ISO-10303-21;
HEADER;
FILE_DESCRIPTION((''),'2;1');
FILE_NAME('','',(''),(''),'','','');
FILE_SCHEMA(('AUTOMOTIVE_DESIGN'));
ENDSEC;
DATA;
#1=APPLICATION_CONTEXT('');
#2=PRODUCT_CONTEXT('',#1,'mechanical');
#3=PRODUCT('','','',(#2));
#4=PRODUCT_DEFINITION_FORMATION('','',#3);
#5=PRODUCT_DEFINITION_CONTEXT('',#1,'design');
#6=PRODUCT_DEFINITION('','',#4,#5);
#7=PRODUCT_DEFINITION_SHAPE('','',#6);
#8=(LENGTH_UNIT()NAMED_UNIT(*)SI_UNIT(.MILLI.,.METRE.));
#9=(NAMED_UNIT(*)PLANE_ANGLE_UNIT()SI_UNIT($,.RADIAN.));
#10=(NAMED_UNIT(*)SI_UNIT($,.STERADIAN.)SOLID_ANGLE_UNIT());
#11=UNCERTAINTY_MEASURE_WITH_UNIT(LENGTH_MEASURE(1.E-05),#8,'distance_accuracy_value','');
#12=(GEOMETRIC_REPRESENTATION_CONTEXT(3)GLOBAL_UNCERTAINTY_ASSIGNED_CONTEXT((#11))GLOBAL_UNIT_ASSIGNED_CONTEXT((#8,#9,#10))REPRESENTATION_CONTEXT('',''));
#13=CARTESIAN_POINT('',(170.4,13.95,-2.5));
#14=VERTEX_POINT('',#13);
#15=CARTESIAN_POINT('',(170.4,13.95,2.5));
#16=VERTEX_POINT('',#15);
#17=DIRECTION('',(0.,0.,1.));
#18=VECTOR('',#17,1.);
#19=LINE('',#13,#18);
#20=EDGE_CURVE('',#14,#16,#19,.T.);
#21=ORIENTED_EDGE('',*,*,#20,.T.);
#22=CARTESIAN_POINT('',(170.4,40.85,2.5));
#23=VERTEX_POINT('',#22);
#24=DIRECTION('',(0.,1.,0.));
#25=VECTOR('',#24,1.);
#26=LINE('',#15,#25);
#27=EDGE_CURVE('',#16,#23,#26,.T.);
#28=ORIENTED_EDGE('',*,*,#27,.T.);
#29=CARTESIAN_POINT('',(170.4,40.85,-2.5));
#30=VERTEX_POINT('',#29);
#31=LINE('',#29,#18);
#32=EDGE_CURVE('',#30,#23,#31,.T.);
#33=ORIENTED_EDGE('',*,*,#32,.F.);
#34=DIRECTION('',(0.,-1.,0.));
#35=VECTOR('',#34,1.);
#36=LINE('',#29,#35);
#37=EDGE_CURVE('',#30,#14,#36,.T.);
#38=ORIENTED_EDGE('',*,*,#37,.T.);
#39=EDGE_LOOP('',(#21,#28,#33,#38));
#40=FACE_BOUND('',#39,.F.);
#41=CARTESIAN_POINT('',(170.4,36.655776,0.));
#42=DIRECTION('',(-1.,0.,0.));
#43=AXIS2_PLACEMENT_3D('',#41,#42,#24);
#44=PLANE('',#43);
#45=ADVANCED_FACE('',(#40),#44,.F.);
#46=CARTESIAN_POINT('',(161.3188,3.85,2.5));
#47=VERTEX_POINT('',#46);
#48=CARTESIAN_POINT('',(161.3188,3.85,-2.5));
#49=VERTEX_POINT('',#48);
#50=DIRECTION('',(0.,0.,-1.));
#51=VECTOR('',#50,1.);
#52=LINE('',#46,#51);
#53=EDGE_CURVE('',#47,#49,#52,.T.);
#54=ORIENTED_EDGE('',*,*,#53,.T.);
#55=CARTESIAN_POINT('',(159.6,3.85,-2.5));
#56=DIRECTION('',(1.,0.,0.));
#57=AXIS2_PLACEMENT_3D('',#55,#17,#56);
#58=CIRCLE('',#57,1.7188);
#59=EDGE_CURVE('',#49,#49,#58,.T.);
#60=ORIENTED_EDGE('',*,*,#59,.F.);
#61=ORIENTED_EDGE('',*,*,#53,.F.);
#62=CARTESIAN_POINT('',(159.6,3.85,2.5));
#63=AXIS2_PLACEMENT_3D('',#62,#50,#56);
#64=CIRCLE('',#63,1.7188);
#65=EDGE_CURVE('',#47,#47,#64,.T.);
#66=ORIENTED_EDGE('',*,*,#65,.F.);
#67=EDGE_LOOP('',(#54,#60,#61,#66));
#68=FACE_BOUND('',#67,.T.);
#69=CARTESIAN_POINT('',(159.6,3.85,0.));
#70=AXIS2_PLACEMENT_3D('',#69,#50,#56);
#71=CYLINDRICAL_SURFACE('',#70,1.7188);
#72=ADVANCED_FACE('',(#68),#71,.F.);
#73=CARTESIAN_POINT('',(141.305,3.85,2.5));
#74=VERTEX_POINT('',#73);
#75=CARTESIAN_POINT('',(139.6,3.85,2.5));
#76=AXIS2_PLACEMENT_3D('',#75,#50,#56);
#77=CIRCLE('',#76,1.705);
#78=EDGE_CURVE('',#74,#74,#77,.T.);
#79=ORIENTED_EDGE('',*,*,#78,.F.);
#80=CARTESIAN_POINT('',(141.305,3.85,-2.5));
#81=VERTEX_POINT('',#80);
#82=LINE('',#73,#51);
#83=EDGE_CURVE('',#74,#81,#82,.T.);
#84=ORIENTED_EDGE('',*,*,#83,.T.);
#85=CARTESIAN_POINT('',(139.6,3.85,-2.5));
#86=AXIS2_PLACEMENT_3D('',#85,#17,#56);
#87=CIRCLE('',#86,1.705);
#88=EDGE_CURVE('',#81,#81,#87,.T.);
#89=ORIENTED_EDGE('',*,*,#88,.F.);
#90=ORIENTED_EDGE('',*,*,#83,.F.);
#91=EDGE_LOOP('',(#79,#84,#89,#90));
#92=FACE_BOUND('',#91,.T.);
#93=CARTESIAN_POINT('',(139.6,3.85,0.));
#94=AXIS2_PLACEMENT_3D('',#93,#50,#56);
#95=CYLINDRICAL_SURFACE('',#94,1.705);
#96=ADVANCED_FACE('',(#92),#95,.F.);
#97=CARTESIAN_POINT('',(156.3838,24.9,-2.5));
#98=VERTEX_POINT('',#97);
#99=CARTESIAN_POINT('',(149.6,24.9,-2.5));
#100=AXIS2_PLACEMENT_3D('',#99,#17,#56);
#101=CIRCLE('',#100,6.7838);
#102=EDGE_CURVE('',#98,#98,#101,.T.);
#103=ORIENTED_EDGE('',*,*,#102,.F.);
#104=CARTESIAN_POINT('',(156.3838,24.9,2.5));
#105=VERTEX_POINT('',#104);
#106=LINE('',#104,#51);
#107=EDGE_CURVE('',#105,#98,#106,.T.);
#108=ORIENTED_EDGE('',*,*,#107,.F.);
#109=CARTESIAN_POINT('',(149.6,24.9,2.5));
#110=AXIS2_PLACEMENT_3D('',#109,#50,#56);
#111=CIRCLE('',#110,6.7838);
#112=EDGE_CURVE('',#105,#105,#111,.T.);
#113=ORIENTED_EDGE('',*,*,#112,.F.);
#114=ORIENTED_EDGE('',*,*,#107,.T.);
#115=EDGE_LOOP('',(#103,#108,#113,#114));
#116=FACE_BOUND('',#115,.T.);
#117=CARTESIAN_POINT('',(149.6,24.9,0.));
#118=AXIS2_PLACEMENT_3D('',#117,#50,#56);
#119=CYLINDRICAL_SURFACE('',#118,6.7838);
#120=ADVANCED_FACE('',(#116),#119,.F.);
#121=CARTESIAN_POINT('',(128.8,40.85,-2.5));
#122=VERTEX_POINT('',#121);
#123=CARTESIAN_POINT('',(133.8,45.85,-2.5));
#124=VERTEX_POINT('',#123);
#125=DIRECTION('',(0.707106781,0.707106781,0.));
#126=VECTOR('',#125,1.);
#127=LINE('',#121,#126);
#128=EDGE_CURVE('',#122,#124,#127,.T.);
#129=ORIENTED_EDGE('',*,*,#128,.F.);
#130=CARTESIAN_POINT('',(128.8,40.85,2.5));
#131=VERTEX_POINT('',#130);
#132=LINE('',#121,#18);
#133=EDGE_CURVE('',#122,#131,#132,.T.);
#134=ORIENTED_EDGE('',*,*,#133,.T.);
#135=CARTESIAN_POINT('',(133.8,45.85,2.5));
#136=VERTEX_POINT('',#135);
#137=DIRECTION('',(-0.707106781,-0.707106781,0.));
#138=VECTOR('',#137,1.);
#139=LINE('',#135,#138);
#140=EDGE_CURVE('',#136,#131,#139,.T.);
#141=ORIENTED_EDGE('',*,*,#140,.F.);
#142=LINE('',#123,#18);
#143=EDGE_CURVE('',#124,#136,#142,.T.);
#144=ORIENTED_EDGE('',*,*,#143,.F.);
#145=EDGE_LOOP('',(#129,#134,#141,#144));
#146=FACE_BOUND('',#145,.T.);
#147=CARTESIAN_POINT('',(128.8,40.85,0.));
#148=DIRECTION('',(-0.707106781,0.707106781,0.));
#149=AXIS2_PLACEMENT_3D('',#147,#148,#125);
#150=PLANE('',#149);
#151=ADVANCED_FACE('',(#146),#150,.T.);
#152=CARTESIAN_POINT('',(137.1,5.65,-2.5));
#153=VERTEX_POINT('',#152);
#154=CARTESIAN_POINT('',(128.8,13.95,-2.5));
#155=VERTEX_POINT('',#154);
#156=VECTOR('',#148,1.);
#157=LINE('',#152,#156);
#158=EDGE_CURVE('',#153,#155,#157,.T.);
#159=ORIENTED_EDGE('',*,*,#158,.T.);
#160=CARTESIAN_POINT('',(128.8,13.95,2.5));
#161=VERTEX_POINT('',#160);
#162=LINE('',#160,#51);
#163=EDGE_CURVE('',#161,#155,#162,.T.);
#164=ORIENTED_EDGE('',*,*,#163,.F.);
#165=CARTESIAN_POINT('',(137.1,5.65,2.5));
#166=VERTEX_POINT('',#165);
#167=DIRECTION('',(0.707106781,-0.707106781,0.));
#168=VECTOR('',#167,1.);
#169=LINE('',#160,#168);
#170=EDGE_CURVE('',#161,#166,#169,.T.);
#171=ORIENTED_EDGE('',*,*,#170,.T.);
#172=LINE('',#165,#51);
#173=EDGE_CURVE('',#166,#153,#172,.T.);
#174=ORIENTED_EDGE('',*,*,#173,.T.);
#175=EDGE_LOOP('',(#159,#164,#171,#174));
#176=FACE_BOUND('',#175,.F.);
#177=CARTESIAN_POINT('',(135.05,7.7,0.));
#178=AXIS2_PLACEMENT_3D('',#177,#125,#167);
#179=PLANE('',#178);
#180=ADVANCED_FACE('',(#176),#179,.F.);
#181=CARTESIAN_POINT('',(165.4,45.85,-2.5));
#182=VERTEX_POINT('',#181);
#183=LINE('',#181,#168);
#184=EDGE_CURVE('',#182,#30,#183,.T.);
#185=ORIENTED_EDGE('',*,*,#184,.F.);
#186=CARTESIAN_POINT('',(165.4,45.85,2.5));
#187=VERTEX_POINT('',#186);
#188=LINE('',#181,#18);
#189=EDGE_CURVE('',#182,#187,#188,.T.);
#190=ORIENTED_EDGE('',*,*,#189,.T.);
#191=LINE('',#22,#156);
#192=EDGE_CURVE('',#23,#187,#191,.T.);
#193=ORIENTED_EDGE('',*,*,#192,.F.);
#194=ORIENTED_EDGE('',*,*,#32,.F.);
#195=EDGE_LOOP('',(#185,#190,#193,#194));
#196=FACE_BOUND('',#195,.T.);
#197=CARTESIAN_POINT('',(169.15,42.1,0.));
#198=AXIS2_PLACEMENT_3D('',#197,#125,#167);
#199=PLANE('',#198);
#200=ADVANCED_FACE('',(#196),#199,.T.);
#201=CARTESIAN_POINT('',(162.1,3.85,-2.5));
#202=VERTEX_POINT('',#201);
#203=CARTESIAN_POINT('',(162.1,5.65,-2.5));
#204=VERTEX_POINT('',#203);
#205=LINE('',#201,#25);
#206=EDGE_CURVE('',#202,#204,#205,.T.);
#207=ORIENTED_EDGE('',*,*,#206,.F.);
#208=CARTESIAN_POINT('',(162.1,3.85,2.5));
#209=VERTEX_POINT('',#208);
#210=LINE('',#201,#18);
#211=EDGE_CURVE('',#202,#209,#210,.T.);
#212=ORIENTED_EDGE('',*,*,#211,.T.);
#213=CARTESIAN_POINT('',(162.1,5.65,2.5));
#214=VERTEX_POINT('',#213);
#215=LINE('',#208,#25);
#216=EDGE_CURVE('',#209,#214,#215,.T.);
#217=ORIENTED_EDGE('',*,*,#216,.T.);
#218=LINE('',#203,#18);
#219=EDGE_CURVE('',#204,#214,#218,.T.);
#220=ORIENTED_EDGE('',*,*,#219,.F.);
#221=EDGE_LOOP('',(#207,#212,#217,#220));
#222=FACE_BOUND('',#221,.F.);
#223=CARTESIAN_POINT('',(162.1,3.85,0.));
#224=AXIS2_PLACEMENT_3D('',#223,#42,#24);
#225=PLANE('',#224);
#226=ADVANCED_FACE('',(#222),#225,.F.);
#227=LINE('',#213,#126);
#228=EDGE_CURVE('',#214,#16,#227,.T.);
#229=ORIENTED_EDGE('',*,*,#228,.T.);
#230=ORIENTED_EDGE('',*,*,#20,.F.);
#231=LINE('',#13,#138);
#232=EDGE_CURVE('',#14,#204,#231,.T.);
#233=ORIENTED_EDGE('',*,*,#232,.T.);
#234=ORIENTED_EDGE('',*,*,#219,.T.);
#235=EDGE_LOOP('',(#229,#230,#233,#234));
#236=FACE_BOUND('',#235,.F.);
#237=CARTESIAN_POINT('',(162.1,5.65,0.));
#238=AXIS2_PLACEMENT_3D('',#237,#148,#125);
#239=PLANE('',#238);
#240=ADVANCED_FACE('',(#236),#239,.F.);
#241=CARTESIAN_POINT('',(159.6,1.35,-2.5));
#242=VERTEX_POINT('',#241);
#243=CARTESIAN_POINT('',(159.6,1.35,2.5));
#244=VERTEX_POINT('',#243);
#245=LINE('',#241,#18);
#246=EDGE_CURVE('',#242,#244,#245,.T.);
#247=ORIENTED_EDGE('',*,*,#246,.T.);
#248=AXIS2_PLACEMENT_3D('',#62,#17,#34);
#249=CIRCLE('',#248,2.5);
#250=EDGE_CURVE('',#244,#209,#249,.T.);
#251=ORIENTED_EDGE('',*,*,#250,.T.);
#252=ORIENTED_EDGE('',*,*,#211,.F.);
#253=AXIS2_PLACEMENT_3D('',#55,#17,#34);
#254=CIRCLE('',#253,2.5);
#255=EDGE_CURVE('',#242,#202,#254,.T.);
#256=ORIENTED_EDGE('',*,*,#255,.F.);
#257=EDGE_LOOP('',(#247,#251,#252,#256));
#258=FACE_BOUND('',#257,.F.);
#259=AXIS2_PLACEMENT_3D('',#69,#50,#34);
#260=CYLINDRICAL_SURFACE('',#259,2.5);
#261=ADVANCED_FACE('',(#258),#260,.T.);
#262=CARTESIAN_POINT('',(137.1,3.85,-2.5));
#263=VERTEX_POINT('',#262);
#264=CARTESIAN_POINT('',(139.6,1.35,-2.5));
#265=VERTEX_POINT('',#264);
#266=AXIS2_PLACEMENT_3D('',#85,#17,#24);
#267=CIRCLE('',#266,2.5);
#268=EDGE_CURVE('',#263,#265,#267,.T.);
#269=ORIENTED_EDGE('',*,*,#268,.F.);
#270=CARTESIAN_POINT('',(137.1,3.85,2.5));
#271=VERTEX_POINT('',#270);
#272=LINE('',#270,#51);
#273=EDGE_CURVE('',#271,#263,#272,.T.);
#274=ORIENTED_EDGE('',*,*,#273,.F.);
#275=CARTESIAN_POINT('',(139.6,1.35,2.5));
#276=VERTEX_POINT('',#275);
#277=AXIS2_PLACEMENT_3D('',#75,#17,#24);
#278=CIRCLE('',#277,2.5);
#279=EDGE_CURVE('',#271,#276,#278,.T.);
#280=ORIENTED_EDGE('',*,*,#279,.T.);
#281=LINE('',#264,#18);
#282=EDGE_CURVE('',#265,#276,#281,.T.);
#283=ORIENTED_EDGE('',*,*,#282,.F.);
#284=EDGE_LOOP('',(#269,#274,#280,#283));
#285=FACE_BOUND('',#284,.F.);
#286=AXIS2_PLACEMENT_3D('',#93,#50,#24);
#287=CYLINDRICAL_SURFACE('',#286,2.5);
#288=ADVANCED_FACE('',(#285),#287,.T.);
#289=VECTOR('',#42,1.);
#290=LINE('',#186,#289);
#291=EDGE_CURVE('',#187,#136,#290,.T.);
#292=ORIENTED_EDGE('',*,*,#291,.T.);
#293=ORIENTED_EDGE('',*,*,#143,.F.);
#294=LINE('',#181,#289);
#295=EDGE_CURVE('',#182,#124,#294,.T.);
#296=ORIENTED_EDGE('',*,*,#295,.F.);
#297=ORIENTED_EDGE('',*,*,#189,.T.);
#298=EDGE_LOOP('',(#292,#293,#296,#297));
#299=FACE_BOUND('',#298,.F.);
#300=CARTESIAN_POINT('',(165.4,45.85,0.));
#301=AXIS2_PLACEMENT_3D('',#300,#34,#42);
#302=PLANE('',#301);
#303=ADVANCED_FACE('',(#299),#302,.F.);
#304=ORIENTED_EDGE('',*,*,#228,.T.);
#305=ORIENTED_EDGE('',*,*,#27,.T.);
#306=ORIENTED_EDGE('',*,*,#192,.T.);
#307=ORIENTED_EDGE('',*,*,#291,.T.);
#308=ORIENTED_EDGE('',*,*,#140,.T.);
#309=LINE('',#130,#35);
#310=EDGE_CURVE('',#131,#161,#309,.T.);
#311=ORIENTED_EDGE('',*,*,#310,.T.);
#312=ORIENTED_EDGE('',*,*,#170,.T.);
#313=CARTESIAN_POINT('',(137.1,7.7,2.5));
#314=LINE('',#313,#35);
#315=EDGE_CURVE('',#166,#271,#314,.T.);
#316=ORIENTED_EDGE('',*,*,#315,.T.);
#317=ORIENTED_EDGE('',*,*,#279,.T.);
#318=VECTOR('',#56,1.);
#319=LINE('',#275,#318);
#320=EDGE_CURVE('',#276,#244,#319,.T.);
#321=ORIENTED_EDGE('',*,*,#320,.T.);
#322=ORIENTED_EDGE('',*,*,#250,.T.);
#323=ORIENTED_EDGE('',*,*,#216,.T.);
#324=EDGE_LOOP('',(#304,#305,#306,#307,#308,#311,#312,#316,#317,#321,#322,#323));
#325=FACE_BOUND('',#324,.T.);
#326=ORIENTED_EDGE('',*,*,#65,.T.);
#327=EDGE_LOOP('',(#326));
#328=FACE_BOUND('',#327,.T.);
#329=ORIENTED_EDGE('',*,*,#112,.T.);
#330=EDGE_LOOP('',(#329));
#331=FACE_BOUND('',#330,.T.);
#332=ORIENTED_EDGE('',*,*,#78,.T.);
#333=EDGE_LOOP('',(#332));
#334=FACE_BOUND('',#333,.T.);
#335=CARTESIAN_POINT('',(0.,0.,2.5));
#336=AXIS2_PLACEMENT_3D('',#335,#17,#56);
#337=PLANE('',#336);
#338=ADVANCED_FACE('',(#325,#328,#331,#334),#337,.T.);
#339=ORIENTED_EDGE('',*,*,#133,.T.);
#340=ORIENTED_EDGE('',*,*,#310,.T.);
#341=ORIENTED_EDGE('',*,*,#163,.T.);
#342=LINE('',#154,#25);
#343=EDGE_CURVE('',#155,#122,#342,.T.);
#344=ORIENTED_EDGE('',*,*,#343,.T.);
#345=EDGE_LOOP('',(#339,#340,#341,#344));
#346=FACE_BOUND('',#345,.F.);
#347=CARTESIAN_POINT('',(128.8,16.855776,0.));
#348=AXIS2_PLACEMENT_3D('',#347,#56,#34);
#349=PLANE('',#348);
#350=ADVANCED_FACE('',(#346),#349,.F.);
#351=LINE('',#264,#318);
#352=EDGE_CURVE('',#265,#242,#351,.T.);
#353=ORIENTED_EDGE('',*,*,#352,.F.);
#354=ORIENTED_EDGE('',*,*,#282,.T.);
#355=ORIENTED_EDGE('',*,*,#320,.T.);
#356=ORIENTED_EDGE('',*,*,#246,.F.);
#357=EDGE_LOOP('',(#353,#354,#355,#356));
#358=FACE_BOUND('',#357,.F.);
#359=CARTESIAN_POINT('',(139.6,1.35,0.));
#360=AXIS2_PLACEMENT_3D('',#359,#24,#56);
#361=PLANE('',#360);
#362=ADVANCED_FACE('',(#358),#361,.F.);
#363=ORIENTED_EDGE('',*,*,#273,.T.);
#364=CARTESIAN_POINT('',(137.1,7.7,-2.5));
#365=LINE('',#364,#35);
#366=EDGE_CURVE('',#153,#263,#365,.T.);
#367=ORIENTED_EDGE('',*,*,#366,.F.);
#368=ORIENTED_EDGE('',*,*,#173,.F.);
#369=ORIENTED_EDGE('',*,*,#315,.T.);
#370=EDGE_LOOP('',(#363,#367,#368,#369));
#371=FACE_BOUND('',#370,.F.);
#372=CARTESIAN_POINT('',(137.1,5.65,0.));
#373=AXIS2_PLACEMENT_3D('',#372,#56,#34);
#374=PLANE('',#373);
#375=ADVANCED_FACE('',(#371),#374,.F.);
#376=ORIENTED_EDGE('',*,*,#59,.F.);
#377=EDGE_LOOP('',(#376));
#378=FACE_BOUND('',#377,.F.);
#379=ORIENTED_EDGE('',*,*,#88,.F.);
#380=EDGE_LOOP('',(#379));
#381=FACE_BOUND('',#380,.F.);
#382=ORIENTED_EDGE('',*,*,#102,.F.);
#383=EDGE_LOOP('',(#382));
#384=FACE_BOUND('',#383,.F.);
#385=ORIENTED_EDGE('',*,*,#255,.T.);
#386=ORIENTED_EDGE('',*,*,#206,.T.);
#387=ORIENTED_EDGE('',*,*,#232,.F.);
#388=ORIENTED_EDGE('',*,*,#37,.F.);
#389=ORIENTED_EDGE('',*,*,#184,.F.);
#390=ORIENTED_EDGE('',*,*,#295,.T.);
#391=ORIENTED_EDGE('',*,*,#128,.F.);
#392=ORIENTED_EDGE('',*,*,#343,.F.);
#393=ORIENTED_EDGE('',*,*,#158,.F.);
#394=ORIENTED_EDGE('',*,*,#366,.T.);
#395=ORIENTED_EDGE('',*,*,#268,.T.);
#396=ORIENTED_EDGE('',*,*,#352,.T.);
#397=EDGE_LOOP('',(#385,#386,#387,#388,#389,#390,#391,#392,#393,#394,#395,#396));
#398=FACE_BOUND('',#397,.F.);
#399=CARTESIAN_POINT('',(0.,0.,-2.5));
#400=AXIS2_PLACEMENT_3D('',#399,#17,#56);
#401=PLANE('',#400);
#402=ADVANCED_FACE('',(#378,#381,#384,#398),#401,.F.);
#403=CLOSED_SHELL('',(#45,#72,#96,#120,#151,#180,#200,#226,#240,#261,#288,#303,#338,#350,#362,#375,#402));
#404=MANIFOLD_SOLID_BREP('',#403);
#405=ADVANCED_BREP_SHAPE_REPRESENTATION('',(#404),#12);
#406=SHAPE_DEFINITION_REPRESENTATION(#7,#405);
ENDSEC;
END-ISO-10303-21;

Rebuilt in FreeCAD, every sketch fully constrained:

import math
import FreeCAD as App
import Part
import Sketcher

V = App.Vector
Q = App.Units.Quantity

doc = App.newDocument("Part")
body = doc.addObject("PartDesign::Body", "Body")

sketch1 = body.newObject("Sketcher::SketchObject", "Sketch")
sketch1.AttachmentSupport = (doc.getObject("XY_Plane"), [""])
sketch1.MapMode = "FlatFace"
sketch1.addGeometry([
    Part.ArcOfCircle(Part.Circle(V(139.6, 3.85, 0), V(0, 0, 1), 2.5), math.radians(180), math.radians(270)),
    Part.LineSegment(V(139.6, 1.35, 0), V(159.6, 1.35, 0)),
    Part.ArcOfCircle(Part.Circle(V(159.6, 3.85, 0), V(0, 0, 1), 2.5), math.radians(-90), math.radians(0)),
    Part.LineSegment(V(162.1, 3.85, 0), V(162.1, 5.65, 0)),
    Part.LineSegment(V(162.1, 5.65, 0), V(170.4, 13.95, 0)),
    Part.LineSegment(V(170.4, 13.95, 0), V(170.4, 40.85, 0)),
    Part.LineSegment(V(170.4, 40.85, 0), V(165.4, 45.85, 0)),
    Part.LineSegment(V(165.4, 45.85, 0), V(133.8, 45.85, 0)),
    Part.LineSegment(V(133.8, 45.85, 0), V(128.8, 40.85, 0)),
    Part.LineSegment(V(128.8, 40.85, 0), V(128.8, 13.95, 0)),
    Part.LineSegment(V(128.8, 13.95, 0), V(137.1, 5.65, 0)),
    Part.LineSegment(V(137.1, 5.65, 0), V(137.1, 3.85, 0)),
    Part.Circle(V(139.6, 3.85, 0), V(0, 0, 1), 1.705),
    Part.Circle(V(159.6, 3.85, 0), V(0, 0, 1), 1.7188),
    Part.Circle(V(149.6, 24.9, 0), V(0, 0, 1), 6.7838),
], False)
sketch1.addConstraint([
    Sketcher.Constraint("Tangent", 0, 2, 1, 1),
    Sketcher.Constraint("Tangent", 1, 2, 2, 1),
    Sketcher.Constraint("Tangent", 2, 2, 3, 1),
    Sketcher.Constraint("Coincident", 3, 2, 4, 1),
    Sketcher.Constraint("Coincident", 4, 2, 5, 1),
    Sketcher.Constraint("Coincident", 5, 2, 6, 1),
    Sketcher.Constraint("Coincident", 6, 2, 7, 1),
    Sketcher.Constraint("Coincident", 7, 2, 8, 1),
    Sketcher.Constraint("Coincident", 8, 2, 9, 1),
    Sketcher.Constraint("Coincident", 9, 2, 10, 1),
    Sketcher.Constraint("Coincident", 10, 2, 11, 1),
    Sketcher.Constraint("Tangent", 11, 2, 0, 1),
    Sketcher.Constraint("Horizontal", 1),
    Sketcher.Constraint("Vertical", 3),
    Sketcher.Constraint("Vertical", 5),
    Sketcher.Constraint("Horizontal", 7),
    Sketcher.Constraint("Vertical", 9),
    Sketcher.Constraint("Vertical", 11),
    Sketcher.Constraint("Coincident", 12, 3, 0, 3),
    Sketcher.Constraint("Coincident", 13, 3, 2, 3),
    Sketcher.Constraint("Equal", 0, 2),
    Sketcher.Constraint("Perpendicular", 4, 6),
    Sketcher.Constraint("Perpendicular", 6, 8),
    Sketcher.Constraint("Perpendicular", 8, 10),
    Sketcher.Constraint("Horizontal", 5, 2, 8, 2),
    Sketcher.Constraint("Horizontal", 4, 2, 9, 2),
    Sketcher.Constraint("Horizontal", 3, 2, 10, 2),
    Sketcher.Constraint("Equal", 6, 8),
    Sketcher.Constraint("Radius", 0, Q("2.5 mm")),
    Sketcher.Constraint("DistanceX", 0, 3, 14, 3, Q("10 mm")),
    Sketcher.Constraint("DistanceX", 14, 3, 2, 3, Q("10 mm")),
    Sketcher.Constraint("DistanceX", 6, 2, 5, 2, Q("5 mm")),
    Sketcher.Constraint("Diameter", 14, Q("13.5676 mm")),
    Sketcher.Constraint("Diameter", 12, Q("3.41 mm")),
    Sketcher.Constraint("DistanceX", 7, 2, 7, 1, Q("31.6 mm")),
    Sketcher.Constraint("DistanceY", 3, 1, 3, 2, Q("1.8 mm")),
    Sketcher.Constraint("DistanceY", 5, 1, 5, 2, Q("26.9 mm")),
    Sketcher.Constraint("Diameter", 13, Q("3.4376 mm")),
    Sketcher.Constraint("DistanceX", -1, 1, 0, 3, Q("139.6 mm")),
    Sketcher.Constraint("DistanceY", -1, 1, 14, 3, Q("24.9 mm")),
    Sketcher.Constraint("DistanceY", -1, 1, 0, 3, Q("3.85 mm")),
])
pad1 = body.newObject("PartDesign::Pad", "Pad")
pad1.Profile = sketch1
pad1.Length = 5
pad1.Midplane = True

doc.recompute()
